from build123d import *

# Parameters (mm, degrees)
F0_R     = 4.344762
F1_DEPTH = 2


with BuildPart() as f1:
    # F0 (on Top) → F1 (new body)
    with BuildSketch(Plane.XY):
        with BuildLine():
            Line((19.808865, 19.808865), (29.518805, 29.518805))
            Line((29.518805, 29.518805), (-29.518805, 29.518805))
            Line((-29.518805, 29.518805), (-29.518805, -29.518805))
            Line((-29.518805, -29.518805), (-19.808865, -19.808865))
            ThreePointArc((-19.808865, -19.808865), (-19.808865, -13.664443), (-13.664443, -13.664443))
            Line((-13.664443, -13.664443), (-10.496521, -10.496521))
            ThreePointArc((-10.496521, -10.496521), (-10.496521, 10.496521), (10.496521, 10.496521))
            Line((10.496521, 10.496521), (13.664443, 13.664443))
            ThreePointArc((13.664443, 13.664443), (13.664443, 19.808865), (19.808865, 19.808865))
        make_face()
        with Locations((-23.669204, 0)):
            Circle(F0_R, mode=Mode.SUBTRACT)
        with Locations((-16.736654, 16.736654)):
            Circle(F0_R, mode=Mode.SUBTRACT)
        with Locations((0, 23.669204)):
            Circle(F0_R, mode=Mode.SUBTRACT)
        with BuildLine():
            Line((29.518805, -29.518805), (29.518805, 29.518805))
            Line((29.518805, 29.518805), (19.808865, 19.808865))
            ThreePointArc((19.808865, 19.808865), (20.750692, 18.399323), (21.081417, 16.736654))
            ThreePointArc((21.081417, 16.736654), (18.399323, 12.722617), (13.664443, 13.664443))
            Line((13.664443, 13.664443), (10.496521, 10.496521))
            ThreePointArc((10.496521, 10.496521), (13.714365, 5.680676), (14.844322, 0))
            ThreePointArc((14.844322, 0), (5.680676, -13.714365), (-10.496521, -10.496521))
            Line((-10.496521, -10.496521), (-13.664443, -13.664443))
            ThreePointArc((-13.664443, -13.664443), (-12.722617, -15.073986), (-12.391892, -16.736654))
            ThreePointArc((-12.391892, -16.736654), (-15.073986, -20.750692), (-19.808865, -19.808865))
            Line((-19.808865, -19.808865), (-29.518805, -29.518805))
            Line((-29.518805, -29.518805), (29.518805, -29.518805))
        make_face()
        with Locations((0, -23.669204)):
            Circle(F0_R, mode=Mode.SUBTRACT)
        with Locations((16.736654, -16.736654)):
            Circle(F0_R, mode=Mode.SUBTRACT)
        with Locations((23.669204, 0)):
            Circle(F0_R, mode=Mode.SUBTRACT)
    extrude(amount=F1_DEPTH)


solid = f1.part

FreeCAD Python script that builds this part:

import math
import FreeCAD as App
import Part
import Sketcher

V = App.Vector
Q = App.Units.Quantity


def add_polygon(sketch, points):
    """Adds a closed chain of lines whose ends are joined by coincident constraints."""
    first, n = sketch.GeometryCount, len(points)
    for a, b in zip(points, points[1:] + points[:1]):
        sketch.addGeometry(Part.LineSegment(App.Vector(*a, 0), App.Vector(*b, 0)), False)
    for i in range(n):
        sketch.addConstraint(Sketcher.Constraint("Coincident", first + i, 2, first + (i + 1) % n, 1))

doc = App.newDocument("Part")
params = doc.addObject("Spreadsheet::Sheet", "Params")
for row, (alias, value) in enumerate([
    ("pad1_length", "2 mm"),
], start=1):
    params.set(f"A{row}", alias)
    params.set(f"B{row}", "=" + value)
    params.setAlias(f"B{row}", alias)

body = doc.addObject("PartDesign::Body", "Body")

sketch1 = body.newObject("Sketcher::SketchObject", "Sketch")
sketch1.AttachmentSupport = (doc.getObject("XY_Plane"), [""])
sketch1.MapMode = "FlatFace"
add_polygon(sketch1, [(29.518805, 29.518805), (-29.518805, 29.518805), (-29.518805, -29.518805), (29.518805, -29.518805)])
sketch1.addGeometry(Part.ArcOfCircle(Part.Circle(V(-16.736654, -16.736654, 0), V(0, 0, 1), 4.344762), math.radians(45), math.radians(225)), False)
sketch1.addGeometry(Part.ArcOfCircle(Part.Circle(V(-16.736656, -16.736654, 0), V(0, 0, 1), 4.344764), math.radians(0), math.radians(44.999986)), False)
sketch1.addGeometry(Part.ArcOfCircle(Part.Circle(V(-16.736654, -16.736655, 0), V(0, 0, 1), 4.344762), math.radians(-135.000015), math.radians(0.000017)), False)
sketch1.addGeometry(Part.Circle(V(0, -23.669204, 0), V(0, 0, 1), 4.344762), False)
sketch1.addGeometry(Part.Circle(V(16.736654, -16.736654, 0), V(0, 0, 1), 4.344762), False)
sketch1.addGeometry(Part.Circle(V(-23.669204, 0, 0), V(0, 0, 1), 4.344762), False)
sketch1.addGeometry(Part.ArcOfCircle(Part.Circle(V(0, 0, 0), V(0, 0, 1), 14.844322), math.radians(45), math.radians(225)), False)
sketch1.addGeometry(Part.ArcOfCircle(Part.Circle(V(-0.000006, -0.000002, 0), V(0, 0, 1), 14.844328), math.radians(0.000007), math.radians(44.999989)), False)
sketch1.addGeometry(Part.ArcOfCircle(Part.Circle(V(0, 0.000001, 0), V(0, 0, 1), 14.844322), math.radians(-134.999997), math.radians(-0.000002)), False)
sketch1.addGeometry(Part.Circle(V(-16.736654, 16.736654, 0), V(0, 0, 1), 4.344762), False)
sketch1.addGeometry(Part.Circle(V(23.669204, 0, 0), V(0, 0, 1), 4.344762), False)
sketch1.addGeometry(Part.Circle(V(0, 23.669204, 0), V(0, 0, 1), 4.344762), False)
sketch1.addGeometry(Part.ArcOfCircle(Part.Circle(V(16.736654, 16.736654, 0), V(0, 0, 1), 4.344762), math.radians(45), math.radians(225)), False)
sketch1.addGeometry(Part.ArcOfCircle(Part.Circle(V(16.736663, 16.736657, 0), V(0, 0, 1), 4.344754), math.radians(-0.000038), math.radians(45.000055)), False)
sketch1.addGeometry(Part.ArcOfCircle(Part.Circle(V(16.736654, 16.736654, 0), V(0, 0, 1), 4.344763), math.radians(-134.999997), math.radians(-0.000006)), False)
sketch1.addConstraint(Sketcher.Constraint("Tangent", 4, 1, 5, 2))
sketch1.addConstraint(Sketcher.Constraint("Tangent", 5, 1, 6, 2))
sketch1.addConstraint(Sketcher.Constraint("Tangent", 6, 1, 4, 2))
sketch1.addConstraint(Sketcher.Constraint("Tangent", 10, 1, 11, 2))
sketch1.addConstraint(Sketcher.Constraint("Tangent", 11, 1, 12, 2))
sketch1.addConstraint(Sketcher.Constraint("Tangent", 12, 1, 10, 2))
sketch1.addConstraint(Sketcher.Constraint("Tangent", 16, 1, 17, 2))
sketch1.addConstraint(Sketcher.Constraint("Tangent", 17, 1, 18, 2))
sketch1.addConstraint(Sketcher.Constraint("Tangent", 18, 1, 16, 2))
sketch1.addConstraint(Sketcher.Constraint("Horizontal", 0))
sketch1.addConstraint(Sketcher.Constraint("Vertical", 1))
sketch1.addConstraint(Sketcher.Constraint("Horizontal", 2))
sketch1.addConstraint(Sketcher.Constraint("Vertical", 3))
sketch1.addConstraint(Sketcher.Constraint("Coincident", 10, 3, -1, 1))
sketch1.addConstraint(Sketcher.Constraint("Equal", 6, 7))
sketch1.addConstraint(Sketcher.Constraint("Equal", 7, 8))
sketch1.addConstraint(Sketcher.Constraint("Equal", 8, 9))
sketch1.addConstraint(Sketcher.Constraint("Equal", 9, 13))
sketch1.addConstraint(Sketcher.Constraint("Equal", 13, 14))
sketch1.addConstraint(Sketcher.Constraint("Equal", 14, 15))
sketch1.addConstraint(Sketcher.Constraint("Equal", 15, 16))
sketch1.addConstraint(Sketcher.Constraint("Symmetric", 8, 3, 13, 3, -1, 1))
sketch1.addConstraint(Sketcher.Constraint("Symmetric", 9, 3, 14, 3, -1, 1))
sketch1.addConstraint(Sketcher.Constraint("Symmetric", 7, 3, 15, 3, -1, 1))
sketch1.addConstraint(Sketcher.Constraint("Symmetric", 4, 3, 16, 3, -1, 1))
sketch1.addConstraint(Sketcher.Constraint("Symmetric", 0, 2, 2, 2, -1, 1))
sketch1.addConstraint(Sketcher.Constraint("Symmetric", 4, 3, 8, 3, -2))
sketch1.addConstraint(Sketcher.Constraint("PointOnObject", 7, 3, -2))
sketch1.addConstraint(Sketcher.Constraint("PointOnObject", 9, 3, -1))
sketch1.addConstraint(Sketcher.Constraint("PointOnObject", 11, 1, -1))
sketch1.addConstraint(Sketcher.Constraint("Horizontal", 8, 3, 5, 1))
sketch1.addConstraint(Sketcher.Constraint("Horizontal", 18, 3, 17, 1))
sketch1.addConstraint(Sketcher.Constraint("Equal", 2, 1))
sketch1.addConstraint(Sketcher.Constraint("Radius", 6, Q("4.344762 mm")))
sketch1.addConstraint(Sketcher.Constraint("Radius", 10, Q("14.844322 mm")))
sketch1.addConstraint(Sketcher.Constraint("DistanceX", 0, 2, 0, 1, Q("59.03761 mm")))
sketch1.addConstraint(Sketcher.Constraint("DistanceX", 9, 3, 11, 3, Q("23.669198 mm")))
sketch1.addConstraint(Sketcher.Constraint("DistanceY", 15, 3, 0, 2, Q("5.849601 mm")))
sketch1.addConstraint(Sketcher.Constraint("DistanceX", 10, 1, 11, 1, Q("4.347801 mm")))
sketch1.addConstraint(Sketcher.Constraint("DistanceX", 12, 1, -1, 1, Q("10.496521 mm")))
sketch1.addConstraint(Sketcher.Constraint("DistanceY", 7, 3, 6, 3, Q("6.932549 mm")))
sketch1.addConstraint(Sketcher.Constraint("DistanceX", 4, 3, 8, 3, Q("33.473308 mm")))
sketch1.addConstraint(Sketcher.Constraint("DistanceX", 4, 3, 4, 1, Q("3.072211 mm")))
sketch1.addConstraint(Sketcher.Constraint("DistanceX", 6, 1, 5, 3, Q("3.072209 mm")))
sketch1.addConstraint(Sketcher.Constraint("DistanceY", 17, 3, 16, 1, Q("3.072208 mm")))
sketch1.addConstraint(Sketcher.Constraint("DistanceX", 18, 1, 16, 3, Q("3.072211 mm")))
pad1 = body.newObject("PartDesign::Pad", "Pad")
pad1.Profile = sketch1
pad1.setExpression("Length", "Params.pad1_length")

doc.recompute()
